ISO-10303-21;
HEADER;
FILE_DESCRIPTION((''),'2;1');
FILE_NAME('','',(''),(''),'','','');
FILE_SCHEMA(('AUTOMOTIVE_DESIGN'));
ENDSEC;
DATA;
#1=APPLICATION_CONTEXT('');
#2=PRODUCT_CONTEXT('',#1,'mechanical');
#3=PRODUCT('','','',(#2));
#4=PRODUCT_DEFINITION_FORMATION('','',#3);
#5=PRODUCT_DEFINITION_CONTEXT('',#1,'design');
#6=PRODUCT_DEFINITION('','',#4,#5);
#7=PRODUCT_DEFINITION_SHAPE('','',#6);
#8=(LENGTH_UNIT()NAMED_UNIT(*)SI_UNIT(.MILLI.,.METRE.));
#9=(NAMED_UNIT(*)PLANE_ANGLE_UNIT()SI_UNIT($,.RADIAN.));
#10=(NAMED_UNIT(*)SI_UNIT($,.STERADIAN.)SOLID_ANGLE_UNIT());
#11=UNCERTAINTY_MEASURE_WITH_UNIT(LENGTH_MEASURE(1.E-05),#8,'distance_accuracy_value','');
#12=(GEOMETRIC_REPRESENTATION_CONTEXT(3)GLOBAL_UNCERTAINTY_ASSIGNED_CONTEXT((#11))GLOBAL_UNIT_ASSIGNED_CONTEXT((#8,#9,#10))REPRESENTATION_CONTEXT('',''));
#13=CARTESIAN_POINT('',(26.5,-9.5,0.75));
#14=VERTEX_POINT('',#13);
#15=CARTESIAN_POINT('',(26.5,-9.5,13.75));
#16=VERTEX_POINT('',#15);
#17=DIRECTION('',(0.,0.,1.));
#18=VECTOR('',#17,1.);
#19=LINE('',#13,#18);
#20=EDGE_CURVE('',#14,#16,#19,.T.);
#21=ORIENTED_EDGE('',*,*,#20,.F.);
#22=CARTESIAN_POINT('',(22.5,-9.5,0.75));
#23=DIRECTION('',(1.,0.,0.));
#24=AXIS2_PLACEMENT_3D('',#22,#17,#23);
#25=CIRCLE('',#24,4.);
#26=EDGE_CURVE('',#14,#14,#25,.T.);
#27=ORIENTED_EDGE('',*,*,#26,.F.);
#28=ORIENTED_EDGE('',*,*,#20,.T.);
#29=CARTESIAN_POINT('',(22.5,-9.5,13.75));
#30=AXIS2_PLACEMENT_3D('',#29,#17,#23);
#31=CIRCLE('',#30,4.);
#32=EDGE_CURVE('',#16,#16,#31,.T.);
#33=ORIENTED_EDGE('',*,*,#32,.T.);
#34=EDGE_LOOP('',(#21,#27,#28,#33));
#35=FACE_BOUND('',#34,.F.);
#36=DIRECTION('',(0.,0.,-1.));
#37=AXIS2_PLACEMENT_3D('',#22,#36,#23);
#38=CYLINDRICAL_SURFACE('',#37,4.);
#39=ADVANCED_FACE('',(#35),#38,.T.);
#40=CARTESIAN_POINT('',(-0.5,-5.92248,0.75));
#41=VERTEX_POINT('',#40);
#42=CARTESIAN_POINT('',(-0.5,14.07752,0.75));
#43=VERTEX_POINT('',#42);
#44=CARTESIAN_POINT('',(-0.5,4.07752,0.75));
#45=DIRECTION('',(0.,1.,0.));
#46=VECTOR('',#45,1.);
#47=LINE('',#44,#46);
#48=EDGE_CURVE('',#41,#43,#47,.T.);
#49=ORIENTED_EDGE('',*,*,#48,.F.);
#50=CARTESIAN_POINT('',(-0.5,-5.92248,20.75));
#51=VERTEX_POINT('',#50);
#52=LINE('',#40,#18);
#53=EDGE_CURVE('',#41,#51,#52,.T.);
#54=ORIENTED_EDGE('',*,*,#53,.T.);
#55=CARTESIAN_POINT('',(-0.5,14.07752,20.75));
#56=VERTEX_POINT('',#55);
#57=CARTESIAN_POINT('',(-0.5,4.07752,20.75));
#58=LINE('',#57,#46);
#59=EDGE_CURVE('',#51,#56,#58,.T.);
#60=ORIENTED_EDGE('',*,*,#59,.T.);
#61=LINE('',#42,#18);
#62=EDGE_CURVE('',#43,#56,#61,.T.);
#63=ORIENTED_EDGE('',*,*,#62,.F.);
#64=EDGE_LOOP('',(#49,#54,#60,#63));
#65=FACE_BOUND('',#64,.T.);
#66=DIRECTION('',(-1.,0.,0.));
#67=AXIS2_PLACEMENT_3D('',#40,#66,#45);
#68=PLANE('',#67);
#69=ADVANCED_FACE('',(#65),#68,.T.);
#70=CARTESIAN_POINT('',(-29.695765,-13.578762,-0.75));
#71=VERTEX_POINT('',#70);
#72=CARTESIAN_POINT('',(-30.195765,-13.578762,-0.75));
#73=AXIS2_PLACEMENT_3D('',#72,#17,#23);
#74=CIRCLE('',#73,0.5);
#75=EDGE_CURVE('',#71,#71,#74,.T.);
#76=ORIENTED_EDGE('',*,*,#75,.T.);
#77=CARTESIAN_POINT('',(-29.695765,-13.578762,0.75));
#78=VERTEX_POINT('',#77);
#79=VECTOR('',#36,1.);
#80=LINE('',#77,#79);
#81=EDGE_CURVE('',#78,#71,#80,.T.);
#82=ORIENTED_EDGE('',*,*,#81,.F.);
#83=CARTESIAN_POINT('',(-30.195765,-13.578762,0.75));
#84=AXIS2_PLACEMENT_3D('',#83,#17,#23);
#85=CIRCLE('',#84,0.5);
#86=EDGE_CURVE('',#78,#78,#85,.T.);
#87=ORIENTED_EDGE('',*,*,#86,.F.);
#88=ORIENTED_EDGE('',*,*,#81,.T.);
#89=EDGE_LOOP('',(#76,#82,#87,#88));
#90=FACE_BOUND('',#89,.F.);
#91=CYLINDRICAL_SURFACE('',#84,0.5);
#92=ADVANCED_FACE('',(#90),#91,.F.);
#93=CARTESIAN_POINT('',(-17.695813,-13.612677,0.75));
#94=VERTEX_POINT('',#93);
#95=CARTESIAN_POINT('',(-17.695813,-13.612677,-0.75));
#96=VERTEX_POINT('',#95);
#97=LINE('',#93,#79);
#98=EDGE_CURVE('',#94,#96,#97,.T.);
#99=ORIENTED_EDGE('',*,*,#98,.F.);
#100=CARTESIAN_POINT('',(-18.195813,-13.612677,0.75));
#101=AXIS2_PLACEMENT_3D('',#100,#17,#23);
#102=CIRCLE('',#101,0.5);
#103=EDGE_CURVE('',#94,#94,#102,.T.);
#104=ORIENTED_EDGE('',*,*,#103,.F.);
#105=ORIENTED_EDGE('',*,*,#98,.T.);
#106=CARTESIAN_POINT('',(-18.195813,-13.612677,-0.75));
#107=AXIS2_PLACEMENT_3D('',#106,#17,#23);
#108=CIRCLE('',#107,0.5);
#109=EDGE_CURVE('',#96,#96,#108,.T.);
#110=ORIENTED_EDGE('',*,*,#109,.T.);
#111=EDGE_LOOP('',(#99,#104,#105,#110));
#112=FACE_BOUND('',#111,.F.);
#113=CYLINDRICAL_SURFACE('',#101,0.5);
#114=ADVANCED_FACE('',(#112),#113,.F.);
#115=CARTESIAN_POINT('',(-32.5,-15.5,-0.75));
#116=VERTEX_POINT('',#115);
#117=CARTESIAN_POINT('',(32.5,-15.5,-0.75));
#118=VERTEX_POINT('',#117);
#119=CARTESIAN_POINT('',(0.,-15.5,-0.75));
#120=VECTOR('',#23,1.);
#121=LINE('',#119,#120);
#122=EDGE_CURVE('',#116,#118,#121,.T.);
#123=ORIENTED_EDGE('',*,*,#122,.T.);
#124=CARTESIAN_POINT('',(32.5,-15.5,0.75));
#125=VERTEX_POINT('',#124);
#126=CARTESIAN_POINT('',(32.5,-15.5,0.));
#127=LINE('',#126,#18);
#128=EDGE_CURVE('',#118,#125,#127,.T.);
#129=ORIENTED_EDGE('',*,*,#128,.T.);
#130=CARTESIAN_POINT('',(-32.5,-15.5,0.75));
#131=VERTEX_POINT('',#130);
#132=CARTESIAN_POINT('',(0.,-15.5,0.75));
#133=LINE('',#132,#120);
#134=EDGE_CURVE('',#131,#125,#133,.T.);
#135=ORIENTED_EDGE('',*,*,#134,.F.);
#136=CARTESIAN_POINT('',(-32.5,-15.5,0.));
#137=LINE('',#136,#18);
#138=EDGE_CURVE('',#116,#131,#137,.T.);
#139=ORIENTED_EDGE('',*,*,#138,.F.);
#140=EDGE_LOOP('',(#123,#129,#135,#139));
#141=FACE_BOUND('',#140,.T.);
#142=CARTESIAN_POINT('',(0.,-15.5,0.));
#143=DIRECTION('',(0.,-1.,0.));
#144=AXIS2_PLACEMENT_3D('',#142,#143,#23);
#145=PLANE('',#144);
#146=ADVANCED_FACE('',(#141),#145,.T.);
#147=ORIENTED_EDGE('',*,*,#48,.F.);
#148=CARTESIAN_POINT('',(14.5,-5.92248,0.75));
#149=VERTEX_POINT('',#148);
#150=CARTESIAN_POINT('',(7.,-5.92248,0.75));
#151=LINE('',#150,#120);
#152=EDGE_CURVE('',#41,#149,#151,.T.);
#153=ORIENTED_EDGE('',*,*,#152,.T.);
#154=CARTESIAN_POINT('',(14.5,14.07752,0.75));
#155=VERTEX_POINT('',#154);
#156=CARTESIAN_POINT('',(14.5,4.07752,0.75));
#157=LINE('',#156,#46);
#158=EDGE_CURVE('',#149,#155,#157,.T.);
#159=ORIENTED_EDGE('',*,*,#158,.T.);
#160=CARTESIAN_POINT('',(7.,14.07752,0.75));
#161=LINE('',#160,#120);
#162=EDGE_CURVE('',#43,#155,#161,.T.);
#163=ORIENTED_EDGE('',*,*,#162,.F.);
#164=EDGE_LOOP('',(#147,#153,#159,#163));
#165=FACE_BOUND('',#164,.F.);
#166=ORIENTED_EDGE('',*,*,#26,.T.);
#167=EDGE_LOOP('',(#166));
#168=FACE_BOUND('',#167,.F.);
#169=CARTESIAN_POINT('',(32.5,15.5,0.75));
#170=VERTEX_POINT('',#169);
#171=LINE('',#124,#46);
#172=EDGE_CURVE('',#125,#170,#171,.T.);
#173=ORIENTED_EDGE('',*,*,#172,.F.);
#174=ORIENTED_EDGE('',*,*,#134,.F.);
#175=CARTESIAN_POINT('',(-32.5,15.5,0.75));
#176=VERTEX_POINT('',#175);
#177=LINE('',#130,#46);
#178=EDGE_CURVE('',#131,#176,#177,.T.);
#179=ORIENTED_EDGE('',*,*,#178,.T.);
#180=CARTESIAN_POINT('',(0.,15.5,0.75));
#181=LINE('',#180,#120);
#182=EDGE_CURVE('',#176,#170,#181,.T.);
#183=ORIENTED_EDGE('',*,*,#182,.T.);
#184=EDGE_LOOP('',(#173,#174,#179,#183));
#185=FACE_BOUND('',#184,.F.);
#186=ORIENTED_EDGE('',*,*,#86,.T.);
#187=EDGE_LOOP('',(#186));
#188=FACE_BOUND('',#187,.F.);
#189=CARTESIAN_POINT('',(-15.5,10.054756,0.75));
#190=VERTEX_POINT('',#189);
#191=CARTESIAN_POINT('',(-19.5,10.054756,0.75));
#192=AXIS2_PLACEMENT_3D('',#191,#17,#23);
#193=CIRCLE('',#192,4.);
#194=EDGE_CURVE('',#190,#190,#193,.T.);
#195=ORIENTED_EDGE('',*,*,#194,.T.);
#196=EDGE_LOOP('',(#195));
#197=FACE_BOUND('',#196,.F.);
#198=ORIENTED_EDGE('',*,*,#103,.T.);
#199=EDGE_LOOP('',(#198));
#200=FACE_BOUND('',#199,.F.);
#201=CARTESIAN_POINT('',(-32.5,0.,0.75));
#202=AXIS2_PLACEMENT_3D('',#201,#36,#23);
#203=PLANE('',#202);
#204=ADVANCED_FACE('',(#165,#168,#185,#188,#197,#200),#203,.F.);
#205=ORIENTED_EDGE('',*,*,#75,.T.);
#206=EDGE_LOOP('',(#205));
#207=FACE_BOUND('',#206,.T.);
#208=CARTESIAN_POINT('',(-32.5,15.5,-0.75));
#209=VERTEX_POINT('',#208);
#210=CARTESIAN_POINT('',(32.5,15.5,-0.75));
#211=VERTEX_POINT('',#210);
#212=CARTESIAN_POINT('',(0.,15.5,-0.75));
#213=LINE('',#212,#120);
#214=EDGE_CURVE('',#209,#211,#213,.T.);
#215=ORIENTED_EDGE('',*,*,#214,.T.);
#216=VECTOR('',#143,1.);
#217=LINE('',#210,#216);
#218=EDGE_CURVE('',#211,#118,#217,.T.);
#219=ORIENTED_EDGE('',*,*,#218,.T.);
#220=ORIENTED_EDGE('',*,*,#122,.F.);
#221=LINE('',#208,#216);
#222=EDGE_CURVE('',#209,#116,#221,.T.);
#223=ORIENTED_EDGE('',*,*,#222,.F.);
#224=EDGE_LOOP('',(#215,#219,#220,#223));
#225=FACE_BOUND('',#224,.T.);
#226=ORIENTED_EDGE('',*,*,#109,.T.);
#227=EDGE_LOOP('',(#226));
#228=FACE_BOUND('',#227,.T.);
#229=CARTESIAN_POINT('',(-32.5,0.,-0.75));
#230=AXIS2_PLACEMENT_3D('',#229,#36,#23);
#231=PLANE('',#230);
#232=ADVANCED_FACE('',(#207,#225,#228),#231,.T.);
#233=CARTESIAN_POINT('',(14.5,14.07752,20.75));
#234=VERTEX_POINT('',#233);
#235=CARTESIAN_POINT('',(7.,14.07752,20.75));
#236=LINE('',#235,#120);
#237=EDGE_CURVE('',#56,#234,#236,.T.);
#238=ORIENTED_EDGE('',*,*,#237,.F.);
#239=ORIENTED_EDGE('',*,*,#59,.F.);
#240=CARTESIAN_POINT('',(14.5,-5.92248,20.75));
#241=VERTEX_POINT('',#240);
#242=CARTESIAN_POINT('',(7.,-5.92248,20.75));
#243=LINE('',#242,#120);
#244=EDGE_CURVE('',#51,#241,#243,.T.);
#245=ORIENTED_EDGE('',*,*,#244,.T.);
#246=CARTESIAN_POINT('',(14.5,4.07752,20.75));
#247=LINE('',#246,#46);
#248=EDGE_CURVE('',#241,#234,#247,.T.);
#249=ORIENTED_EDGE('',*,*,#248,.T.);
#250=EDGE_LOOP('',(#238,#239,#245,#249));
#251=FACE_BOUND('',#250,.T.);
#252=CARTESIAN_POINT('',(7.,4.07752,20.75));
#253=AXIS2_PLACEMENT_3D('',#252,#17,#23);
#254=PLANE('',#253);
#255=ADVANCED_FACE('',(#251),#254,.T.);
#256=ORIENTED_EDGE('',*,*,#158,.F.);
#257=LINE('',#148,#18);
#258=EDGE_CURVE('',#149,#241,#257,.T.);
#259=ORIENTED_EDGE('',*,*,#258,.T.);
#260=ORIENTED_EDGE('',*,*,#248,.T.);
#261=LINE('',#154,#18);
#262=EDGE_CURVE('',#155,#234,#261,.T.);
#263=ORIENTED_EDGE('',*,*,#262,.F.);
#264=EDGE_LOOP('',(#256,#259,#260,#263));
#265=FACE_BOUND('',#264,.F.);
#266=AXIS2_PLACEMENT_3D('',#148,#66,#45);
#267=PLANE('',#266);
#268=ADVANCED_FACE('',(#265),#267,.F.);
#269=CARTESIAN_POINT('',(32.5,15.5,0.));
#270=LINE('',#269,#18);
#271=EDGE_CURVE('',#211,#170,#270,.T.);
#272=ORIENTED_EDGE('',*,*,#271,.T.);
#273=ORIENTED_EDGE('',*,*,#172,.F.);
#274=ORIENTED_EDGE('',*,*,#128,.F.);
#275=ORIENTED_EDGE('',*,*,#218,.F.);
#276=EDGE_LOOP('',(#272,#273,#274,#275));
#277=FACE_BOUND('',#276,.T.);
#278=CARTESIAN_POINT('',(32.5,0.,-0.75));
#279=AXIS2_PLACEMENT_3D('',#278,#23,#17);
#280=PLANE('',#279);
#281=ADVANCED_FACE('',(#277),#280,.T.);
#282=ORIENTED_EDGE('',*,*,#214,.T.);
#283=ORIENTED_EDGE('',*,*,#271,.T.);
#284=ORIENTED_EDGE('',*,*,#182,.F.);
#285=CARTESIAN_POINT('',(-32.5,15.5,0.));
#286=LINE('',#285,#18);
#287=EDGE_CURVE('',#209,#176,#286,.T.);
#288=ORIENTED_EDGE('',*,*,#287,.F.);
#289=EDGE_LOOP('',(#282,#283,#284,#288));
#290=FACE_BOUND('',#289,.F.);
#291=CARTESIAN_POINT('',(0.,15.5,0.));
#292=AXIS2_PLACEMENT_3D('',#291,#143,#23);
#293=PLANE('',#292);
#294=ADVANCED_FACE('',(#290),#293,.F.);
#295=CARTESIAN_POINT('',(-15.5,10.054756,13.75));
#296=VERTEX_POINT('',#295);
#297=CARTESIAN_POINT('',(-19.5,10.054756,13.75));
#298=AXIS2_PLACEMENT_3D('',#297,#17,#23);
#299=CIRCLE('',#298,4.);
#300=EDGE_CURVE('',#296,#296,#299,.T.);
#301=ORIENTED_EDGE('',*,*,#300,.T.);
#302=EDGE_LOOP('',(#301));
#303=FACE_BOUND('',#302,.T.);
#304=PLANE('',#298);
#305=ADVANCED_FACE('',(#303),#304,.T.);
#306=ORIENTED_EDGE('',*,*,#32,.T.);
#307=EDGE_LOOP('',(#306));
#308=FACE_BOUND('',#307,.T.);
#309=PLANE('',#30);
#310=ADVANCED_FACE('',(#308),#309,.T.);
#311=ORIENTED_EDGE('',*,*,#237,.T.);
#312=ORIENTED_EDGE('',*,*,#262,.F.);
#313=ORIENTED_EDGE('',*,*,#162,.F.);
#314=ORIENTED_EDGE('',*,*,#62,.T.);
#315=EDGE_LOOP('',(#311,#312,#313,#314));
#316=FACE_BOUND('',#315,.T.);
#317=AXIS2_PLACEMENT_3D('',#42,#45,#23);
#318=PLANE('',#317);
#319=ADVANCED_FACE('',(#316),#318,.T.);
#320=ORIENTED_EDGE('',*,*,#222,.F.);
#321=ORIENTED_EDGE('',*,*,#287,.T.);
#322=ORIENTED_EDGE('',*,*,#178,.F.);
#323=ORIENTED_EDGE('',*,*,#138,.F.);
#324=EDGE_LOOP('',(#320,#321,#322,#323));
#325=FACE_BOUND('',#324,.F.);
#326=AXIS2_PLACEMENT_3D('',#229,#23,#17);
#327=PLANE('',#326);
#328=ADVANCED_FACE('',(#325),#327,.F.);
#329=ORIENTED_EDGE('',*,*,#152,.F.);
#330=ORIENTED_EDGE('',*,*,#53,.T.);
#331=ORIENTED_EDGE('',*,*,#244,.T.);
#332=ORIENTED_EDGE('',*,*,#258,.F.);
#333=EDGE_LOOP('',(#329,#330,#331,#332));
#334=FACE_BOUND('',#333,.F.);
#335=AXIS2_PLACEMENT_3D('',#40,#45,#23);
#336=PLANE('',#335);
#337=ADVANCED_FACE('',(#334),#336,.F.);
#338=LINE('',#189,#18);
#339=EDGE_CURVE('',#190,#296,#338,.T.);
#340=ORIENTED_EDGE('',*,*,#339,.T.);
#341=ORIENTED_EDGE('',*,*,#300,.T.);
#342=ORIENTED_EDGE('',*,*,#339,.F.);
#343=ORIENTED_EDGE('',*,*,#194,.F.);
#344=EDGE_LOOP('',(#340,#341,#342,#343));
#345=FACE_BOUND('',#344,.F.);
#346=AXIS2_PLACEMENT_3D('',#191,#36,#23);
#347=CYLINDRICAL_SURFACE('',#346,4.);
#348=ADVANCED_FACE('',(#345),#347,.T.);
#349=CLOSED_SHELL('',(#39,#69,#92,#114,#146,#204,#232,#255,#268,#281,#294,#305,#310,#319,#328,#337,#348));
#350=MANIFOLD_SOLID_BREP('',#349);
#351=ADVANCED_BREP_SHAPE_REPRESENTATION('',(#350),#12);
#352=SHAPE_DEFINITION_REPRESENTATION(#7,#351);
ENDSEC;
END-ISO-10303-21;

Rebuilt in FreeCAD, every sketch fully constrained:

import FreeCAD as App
import Part
import Sketcher
Q = App.Units.Quantity

doc = App.newDocument("Part")
body = doc.addObject("PartDesign::Body", "Body")

# Sketch on XZ plane
sketch1 = doc.addObject("Sketcher::SketchObject", "Sketch")
body.addObject(sketch1)
sketch1.AttachmentSupport = (doc.XZ_Plane, [""])
sketch1.MapMode = "FlatFace"
sketch1.addGeometry(Part.LineSegment(App.Vector(-32.5, 0.8, 0), App.Vector(-32.5, -0.8, 0)), False)
sketch1.addGeometry(Part.LineSegment(App.Vector(-32.5, -0.8, 0), App.Vector(32.5, -0.8, 0)), False)
sketch1.addGeometry(Part.LineSegment(App.Vector(32.5, -0.8, 0), App.Vector(32.5, 0.8, 0)), False)
sketch1.addGeometry(Part.LineSegment(App.Vector(32.5, 0.8, 0), App.Vector(-32.5, 0.8, 0)), False)
sketch1.addConstraint(Sketcher.Constraint("Coincident", 0, 2, 1, 1))
sketch1.addConstraint(Sketcher.Constraint("Coincident", 1, 2, 2, 1))
sketch1.addConstraint(Sketcher.Constraint("Coincident", 2, 2, 3, 1))
sketch1.addConstraint(Sketcher.Constraint("Coincident", 3, 2, 0, 1))
sketch1.addConstraint(Sketcher.Constraint("Vertical", 0))
sketch1.addConstraint(Sketcher.Constraint("Horizontal", 1))
sketch1.addConstraint(Sketcher.Constraint("Vertical", 2))
sketch1.addConstraint(Sketcher.Constraint("Horizontal", 3))
sketch1.addConstraint(Sketcher.Constraint("Symmetric", 0, 2, 2, 2, -1, 1))
sketch1.addConstraint(Sketcher.Constraint("DistanceX", 1, 1, 1, 2, Q("65 mm")))
sketch1.addConstraint(Sketcher.Constraint("DistanceY", 0, 2, 0, 1, Q("1.5 mm")))
pad1 = doc.addObject("PartDesign::Pad", "Pad")
body.addObject(pad1)
pad1.Profile = sketch1
pad1.Length = 31
pad1.Midplane = True

# Sketch on XY plane
sketch2 = doc.addObject("Sketcher::SketchObject", "Sketch001")
body.addObject(sketch2)
sketch2.AttachmentSupport = (doc.XY_Plane, [""])
sketch2.MapMode = "FlatFace"
sketch2.AttachmentOffset = App.Placement(App.Vector(0, 0, 0.75), App.Rotation())
sketch2.addGeometry(Part.LineSegment(App.Vector(0, 14, 0), App.Vector(0, -6, 0)), False)
sketch2.addGeometry(Part.LineSegment(App.Vector(0, -6, 0), App.Vector(14, -6, 0)), False)
sketch2.addGeometry(Part.LineSegment(App.Vector(14, -6, 0), App.Vector(14, 14, 0)), False)
sketch2.addGeometry(Part.LineSegment(App.Vector(14, 14, 0), App.Vector(0, 14, 0)), False)
sketch2.addConstraint(Sketcher.Constraint("Coincident", 0, 2, 1, 1))
sketch2.addConstraint(Sketcher.Constraint("Coincident", 1, 2, 2, 1))
sketch2.addConstraint(Sketcher.Constraint("Coincident", 2, 2, 3, 1))
sketch2.addConstraint(Sketcher.Constraint("Coincident", 3, 2, 0, 1))
sketch2.addConstraint(Sketcher.Constraint("Vertical", 0))
sketch2.addConstraint(Sketcher.Constraint("Horizontal", 1))
sketch2.addConstraint(Sketcher.Constraint("Vertical", 2))
sketch2.addConstraint(Sketcher.Constraint("Horizontal", 3))
sketch2.addConstraint(Sketcher.Constraint("DistanceX", 1, 1, 1, 2, Q("15 mm")))
sketch2.addConstraint(Sketcher.Constraint("DistanceY", 0, 2, 0, 1, Q("20 mm")))
sketch2.addConstraint(Sketcher.Constraint("DistanceX", 0, 2, -1, 1, Q("0.5 mm")))
sketch2.addConstraint(Sketcher.Constraint("DistanceY", 0, 2, -1, 1, Q("5.92248 mm")))
pad2 = doc.addObject("PartDesign::Pad", "Pad001")
body.addObject(pad2)
pad2.Profile = sketch2
pad2.Length = 20

# Sketch on XY plane
sketch3 = doc.addObject("Sketcher::SketchObject", "Sketch002")
body.addObject(sketch3)
sketch3.AttachmentSupport = (doc.XY_Plane, [""])
sketch3.MapMode = "FlatFace"
sketch3.AttachmentOffset = App.Placement(App.Vector(0, 0, 0.75), App.Rotation())
sketch3.addGeometry(Part.Circle(App.Vector(-19.5, 10.1, 0), App.Vector(0, 0, 1), 4), False)
sketch3.addConstraint(Sketcher.Constraint("Diameter", 0, Q("8 mm")))
sketch3.addConstraint(Sketcher.Constraint("DistanceX", 0, 3, -1, 1, Q("19.5 mm")))
sketch3.addConstraint(Sketcher.Constraint("DistanceY", -1, 1, 0, 3, Q("10.054756 mm")))
pad3 = doc.addObject("PartDesign::Pad", "Pad002")
body.addObject(pad3)
pad3.Profile = sketch3
pad3.Length = 13

# Sketch on XY plane
sketch4 = doc.addObject("Sketcher::SketchObject", "Sketch003")
body.addObject(sketch4)
sketch4.AttachmentSupport = (doc.XY_Plane, [""])
sketch4.MapMode = "FlatFace"
sketch4.AttachmentOffset = App.Placement(App.Vector(0, 0, 0.75), App.Rotation())
sketch4.addGeometry(Part.Circle(App.Vector(22.5, -9.5, 0), App.Vector(0, 0, 1), 4), False)
sketch4.addConstraint(Sketcher.Constraint("Diameter", 0, Q("8 mm")))
sketch4.addConstraint(Sketcher.Constraint("DistanceX", -1, 1, 0, 3, Q("22.5 mm")))
sketch4.addConstraint(Sketcher.Constraint("DistanceY", 0, 3, -1, 1, Q("9.5 mm")))
pad4 = doc.addObject("PartDesign::Pad", "Pad003")
body.addObject(pad4)
pad4.Profile = sketch4
pad4.Length = 13

# Sketch on XY plane
sketch5 = doc.addObject("Sketcher::SketchObject", "Sketch004")
body.addObject(sketch5)
sketch5.AttachmentSupport = (doc.XY_Plane, [""])
sketch5.MapMode = "FlatFace"
sketch5.AttachmentOffset = App.Placement(App.Vector(0, 0, 0.75), App.Rotation())
sketch5.addGeometry(Part.Circle(App.Vector(-30.2, -13.6, 0), App.Vector(0, 0, 1), 0.5), False)
sketch5.addConstraint(Sketcher.Constraint("Diameter", 0, Q("1 mm")))
sketch5.addConstraint(Sketcher.Constraint("DistanceY", 0, 3, -1, 1, Q("13.578762 mm")))
sketch5.addConstraint(Sketcher.Constraint("DistanceX", 0, 3, -1, 1, Q("30.195765 mm")))
pocket1 = doc.addObject("PartDesign::Pocket", "Pocket")
body.addObject(pocket1)
pocket1.Profile = sketch5
pocket1.Length = 25.4

# Sketch on XY plane
sketch6 = doc.addObject("Sketcher::SketchObject", "Sketch005")
body.addObject(sketch6)
sketch6.AttachmentSupport = (doc.XY_Plane, [""])
sketch6.MapMode = "FlatFace"
sketch6.AttachmentOffset = App.Placement(App.Vector(0, 0, 0.75), App.Rotation())
sketch6.addGeometry(Part.Circle(App.Vector(-18.2, -13.6, 0), App.Vector(0, 0, 1), 0.5), False)
sketch6.addConstraint(Sketcher.Constraint("Diameter", 0, Q("1 mm")))
sketch6.addConstraint(Sketcher.Constraint("DistanceX", 0, 3, -1, 1, Q("18.195813 mm")))
sketch6.addConstraint(Sketcher.Constraint("DistanceY", 0, 3, -1, 1, Q("13.612677 mm")))
pocket2 = doc.addObject("PartDesign::Pocket", "Pocket001")
body.addObject(pocket2)
pocket2.Profile = sketch6
pocket2.Length = 25.4

doc.recompute()
